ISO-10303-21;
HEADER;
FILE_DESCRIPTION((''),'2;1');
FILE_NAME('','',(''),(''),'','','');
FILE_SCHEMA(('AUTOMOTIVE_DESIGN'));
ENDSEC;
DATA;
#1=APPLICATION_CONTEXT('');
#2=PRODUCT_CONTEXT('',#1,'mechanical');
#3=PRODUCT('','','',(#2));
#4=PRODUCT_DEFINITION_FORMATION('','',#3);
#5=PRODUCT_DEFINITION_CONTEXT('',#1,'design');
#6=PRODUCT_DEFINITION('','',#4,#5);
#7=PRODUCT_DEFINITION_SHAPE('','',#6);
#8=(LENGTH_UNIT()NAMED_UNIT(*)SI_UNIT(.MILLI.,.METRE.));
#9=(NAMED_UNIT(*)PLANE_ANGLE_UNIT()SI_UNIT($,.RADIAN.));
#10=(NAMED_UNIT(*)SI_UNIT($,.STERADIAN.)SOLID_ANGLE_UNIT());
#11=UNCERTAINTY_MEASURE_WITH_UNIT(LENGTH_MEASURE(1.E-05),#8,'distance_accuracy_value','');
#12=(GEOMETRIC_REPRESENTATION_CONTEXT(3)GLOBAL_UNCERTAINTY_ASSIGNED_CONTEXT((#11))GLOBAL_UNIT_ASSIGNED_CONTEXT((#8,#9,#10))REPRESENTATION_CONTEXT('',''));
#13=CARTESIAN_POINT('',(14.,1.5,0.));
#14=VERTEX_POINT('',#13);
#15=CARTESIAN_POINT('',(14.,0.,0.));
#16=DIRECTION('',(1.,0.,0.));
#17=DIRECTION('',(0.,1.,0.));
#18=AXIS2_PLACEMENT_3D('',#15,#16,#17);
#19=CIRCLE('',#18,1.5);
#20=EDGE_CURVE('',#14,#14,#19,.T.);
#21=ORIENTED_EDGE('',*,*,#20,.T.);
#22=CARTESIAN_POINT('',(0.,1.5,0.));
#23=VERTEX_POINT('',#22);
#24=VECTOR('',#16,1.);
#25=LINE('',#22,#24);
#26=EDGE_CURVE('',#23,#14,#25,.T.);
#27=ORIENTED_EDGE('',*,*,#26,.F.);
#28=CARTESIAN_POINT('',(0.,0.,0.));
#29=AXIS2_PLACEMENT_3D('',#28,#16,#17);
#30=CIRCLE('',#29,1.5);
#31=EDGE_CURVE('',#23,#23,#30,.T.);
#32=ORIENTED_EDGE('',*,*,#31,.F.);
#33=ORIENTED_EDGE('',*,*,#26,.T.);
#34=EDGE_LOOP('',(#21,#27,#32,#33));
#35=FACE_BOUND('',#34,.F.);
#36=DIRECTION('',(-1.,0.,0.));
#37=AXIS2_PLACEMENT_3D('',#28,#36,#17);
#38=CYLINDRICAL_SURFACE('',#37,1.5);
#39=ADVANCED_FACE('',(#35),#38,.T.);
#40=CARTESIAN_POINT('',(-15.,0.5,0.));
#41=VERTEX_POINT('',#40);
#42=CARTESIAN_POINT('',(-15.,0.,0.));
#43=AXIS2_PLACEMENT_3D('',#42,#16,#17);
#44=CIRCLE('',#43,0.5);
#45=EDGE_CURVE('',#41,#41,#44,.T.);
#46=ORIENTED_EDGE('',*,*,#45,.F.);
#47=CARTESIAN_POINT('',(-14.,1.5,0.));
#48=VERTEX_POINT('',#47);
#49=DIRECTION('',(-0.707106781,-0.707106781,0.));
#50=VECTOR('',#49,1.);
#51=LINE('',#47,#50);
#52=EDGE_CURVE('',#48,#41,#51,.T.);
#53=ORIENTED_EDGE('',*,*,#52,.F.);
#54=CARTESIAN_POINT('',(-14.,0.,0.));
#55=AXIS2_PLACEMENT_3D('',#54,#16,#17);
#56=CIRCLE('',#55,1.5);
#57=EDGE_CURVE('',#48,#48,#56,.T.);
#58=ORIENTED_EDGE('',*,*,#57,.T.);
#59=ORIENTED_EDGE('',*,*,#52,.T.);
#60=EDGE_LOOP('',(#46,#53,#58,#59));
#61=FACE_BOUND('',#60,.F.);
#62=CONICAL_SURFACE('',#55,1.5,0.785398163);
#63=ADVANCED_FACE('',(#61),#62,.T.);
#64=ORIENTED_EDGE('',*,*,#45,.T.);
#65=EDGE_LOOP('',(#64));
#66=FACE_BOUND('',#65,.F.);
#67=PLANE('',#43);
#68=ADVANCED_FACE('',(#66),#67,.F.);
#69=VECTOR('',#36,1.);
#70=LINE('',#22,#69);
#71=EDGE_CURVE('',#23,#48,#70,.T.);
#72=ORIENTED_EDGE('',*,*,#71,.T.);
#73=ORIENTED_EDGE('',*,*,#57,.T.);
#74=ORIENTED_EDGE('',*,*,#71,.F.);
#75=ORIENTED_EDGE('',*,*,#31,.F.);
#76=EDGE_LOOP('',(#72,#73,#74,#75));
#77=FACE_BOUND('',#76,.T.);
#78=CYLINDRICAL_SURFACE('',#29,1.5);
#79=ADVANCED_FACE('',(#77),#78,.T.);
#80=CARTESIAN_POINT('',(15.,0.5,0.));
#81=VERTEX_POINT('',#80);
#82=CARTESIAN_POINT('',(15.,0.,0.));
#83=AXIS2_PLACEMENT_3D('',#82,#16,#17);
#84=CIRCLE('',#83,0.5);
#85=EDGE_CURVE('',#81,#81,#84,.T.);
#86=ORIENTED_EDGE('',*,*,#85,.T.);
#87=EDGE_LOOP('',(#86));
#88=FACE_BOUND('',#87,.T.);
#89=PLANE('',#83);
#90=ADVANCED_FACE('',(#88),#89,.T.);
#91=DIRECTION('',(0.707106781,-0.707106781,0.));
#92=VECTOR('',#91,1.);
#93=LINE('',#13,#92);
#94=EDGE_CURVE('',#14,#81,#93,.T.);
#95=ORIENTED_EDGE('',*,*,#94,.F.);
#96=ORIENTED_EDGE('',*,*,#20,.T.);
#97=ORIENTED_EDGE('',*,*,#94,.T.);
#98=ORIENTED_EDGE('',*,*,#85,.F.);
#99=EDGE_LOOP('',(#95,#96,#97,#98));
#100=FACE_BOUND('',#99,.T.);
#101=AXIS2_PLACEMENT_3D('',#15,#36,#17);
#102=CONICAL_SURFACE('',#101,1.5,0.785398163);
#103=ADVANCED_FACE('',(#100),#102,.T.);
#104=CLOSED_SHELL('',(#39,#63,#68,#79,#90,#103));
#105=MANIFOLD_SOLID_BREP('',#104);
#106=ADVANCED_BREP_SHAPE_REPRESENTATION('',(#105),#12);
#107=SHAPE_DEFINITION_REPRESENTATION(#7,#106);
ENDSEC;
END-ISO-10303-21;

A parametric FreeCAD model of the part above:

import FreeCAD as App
import Part
import Sketcher

V = App.Vector


def edges_at(feature, points):
    """Names of the edges that pass closest to the given points."""
    edges = feature.Shape.Edges
    near = lambda p: min(range(len(edges)), key=lambda i: edges[i].distToShape(Part.Vertex(*p))[0])
    return sorted({f"Edge{near(p) + 1}" for p in points})

doc = App.newDocument("Part")
body = doc.addObject("PartDesign::Body", "Body")

# Sketch on YZ plane
sketch1 = body.newObject("Sketcher::SketchObject", "Sketch")
sketch1.AttachmentSupport = (doc.getObject("YZ_Plane"), [""])
sketch1.MapMode = "FlatFace"
sketch1.addGeometry(Part.Circle(V(0, 0, 0), V(0, 0, 1), 1.5), False)
sketch1.addConstraint(Sketcher.Constraint("Coincident", 0, 3, -1, 1))
sketch1.addConstraint(Sketcher.Constraint("Diameter", 0, 3.0))
pad1 = body.newObject("PartDesign::Pad", "Pad")
pad1.Profile = sketch1
pad1.Length = 30
pad1.Midplane = True
doc.recompute()

chamfer = body.newObject("PartDesign::Chamfer", "Chamfer")
chamfer.Base = (pad1, edges_at(pad1, [(15, -1.5, 0), (-15, -1.5, 0)]))
chamfer.Size = 1

doc.recompute()
